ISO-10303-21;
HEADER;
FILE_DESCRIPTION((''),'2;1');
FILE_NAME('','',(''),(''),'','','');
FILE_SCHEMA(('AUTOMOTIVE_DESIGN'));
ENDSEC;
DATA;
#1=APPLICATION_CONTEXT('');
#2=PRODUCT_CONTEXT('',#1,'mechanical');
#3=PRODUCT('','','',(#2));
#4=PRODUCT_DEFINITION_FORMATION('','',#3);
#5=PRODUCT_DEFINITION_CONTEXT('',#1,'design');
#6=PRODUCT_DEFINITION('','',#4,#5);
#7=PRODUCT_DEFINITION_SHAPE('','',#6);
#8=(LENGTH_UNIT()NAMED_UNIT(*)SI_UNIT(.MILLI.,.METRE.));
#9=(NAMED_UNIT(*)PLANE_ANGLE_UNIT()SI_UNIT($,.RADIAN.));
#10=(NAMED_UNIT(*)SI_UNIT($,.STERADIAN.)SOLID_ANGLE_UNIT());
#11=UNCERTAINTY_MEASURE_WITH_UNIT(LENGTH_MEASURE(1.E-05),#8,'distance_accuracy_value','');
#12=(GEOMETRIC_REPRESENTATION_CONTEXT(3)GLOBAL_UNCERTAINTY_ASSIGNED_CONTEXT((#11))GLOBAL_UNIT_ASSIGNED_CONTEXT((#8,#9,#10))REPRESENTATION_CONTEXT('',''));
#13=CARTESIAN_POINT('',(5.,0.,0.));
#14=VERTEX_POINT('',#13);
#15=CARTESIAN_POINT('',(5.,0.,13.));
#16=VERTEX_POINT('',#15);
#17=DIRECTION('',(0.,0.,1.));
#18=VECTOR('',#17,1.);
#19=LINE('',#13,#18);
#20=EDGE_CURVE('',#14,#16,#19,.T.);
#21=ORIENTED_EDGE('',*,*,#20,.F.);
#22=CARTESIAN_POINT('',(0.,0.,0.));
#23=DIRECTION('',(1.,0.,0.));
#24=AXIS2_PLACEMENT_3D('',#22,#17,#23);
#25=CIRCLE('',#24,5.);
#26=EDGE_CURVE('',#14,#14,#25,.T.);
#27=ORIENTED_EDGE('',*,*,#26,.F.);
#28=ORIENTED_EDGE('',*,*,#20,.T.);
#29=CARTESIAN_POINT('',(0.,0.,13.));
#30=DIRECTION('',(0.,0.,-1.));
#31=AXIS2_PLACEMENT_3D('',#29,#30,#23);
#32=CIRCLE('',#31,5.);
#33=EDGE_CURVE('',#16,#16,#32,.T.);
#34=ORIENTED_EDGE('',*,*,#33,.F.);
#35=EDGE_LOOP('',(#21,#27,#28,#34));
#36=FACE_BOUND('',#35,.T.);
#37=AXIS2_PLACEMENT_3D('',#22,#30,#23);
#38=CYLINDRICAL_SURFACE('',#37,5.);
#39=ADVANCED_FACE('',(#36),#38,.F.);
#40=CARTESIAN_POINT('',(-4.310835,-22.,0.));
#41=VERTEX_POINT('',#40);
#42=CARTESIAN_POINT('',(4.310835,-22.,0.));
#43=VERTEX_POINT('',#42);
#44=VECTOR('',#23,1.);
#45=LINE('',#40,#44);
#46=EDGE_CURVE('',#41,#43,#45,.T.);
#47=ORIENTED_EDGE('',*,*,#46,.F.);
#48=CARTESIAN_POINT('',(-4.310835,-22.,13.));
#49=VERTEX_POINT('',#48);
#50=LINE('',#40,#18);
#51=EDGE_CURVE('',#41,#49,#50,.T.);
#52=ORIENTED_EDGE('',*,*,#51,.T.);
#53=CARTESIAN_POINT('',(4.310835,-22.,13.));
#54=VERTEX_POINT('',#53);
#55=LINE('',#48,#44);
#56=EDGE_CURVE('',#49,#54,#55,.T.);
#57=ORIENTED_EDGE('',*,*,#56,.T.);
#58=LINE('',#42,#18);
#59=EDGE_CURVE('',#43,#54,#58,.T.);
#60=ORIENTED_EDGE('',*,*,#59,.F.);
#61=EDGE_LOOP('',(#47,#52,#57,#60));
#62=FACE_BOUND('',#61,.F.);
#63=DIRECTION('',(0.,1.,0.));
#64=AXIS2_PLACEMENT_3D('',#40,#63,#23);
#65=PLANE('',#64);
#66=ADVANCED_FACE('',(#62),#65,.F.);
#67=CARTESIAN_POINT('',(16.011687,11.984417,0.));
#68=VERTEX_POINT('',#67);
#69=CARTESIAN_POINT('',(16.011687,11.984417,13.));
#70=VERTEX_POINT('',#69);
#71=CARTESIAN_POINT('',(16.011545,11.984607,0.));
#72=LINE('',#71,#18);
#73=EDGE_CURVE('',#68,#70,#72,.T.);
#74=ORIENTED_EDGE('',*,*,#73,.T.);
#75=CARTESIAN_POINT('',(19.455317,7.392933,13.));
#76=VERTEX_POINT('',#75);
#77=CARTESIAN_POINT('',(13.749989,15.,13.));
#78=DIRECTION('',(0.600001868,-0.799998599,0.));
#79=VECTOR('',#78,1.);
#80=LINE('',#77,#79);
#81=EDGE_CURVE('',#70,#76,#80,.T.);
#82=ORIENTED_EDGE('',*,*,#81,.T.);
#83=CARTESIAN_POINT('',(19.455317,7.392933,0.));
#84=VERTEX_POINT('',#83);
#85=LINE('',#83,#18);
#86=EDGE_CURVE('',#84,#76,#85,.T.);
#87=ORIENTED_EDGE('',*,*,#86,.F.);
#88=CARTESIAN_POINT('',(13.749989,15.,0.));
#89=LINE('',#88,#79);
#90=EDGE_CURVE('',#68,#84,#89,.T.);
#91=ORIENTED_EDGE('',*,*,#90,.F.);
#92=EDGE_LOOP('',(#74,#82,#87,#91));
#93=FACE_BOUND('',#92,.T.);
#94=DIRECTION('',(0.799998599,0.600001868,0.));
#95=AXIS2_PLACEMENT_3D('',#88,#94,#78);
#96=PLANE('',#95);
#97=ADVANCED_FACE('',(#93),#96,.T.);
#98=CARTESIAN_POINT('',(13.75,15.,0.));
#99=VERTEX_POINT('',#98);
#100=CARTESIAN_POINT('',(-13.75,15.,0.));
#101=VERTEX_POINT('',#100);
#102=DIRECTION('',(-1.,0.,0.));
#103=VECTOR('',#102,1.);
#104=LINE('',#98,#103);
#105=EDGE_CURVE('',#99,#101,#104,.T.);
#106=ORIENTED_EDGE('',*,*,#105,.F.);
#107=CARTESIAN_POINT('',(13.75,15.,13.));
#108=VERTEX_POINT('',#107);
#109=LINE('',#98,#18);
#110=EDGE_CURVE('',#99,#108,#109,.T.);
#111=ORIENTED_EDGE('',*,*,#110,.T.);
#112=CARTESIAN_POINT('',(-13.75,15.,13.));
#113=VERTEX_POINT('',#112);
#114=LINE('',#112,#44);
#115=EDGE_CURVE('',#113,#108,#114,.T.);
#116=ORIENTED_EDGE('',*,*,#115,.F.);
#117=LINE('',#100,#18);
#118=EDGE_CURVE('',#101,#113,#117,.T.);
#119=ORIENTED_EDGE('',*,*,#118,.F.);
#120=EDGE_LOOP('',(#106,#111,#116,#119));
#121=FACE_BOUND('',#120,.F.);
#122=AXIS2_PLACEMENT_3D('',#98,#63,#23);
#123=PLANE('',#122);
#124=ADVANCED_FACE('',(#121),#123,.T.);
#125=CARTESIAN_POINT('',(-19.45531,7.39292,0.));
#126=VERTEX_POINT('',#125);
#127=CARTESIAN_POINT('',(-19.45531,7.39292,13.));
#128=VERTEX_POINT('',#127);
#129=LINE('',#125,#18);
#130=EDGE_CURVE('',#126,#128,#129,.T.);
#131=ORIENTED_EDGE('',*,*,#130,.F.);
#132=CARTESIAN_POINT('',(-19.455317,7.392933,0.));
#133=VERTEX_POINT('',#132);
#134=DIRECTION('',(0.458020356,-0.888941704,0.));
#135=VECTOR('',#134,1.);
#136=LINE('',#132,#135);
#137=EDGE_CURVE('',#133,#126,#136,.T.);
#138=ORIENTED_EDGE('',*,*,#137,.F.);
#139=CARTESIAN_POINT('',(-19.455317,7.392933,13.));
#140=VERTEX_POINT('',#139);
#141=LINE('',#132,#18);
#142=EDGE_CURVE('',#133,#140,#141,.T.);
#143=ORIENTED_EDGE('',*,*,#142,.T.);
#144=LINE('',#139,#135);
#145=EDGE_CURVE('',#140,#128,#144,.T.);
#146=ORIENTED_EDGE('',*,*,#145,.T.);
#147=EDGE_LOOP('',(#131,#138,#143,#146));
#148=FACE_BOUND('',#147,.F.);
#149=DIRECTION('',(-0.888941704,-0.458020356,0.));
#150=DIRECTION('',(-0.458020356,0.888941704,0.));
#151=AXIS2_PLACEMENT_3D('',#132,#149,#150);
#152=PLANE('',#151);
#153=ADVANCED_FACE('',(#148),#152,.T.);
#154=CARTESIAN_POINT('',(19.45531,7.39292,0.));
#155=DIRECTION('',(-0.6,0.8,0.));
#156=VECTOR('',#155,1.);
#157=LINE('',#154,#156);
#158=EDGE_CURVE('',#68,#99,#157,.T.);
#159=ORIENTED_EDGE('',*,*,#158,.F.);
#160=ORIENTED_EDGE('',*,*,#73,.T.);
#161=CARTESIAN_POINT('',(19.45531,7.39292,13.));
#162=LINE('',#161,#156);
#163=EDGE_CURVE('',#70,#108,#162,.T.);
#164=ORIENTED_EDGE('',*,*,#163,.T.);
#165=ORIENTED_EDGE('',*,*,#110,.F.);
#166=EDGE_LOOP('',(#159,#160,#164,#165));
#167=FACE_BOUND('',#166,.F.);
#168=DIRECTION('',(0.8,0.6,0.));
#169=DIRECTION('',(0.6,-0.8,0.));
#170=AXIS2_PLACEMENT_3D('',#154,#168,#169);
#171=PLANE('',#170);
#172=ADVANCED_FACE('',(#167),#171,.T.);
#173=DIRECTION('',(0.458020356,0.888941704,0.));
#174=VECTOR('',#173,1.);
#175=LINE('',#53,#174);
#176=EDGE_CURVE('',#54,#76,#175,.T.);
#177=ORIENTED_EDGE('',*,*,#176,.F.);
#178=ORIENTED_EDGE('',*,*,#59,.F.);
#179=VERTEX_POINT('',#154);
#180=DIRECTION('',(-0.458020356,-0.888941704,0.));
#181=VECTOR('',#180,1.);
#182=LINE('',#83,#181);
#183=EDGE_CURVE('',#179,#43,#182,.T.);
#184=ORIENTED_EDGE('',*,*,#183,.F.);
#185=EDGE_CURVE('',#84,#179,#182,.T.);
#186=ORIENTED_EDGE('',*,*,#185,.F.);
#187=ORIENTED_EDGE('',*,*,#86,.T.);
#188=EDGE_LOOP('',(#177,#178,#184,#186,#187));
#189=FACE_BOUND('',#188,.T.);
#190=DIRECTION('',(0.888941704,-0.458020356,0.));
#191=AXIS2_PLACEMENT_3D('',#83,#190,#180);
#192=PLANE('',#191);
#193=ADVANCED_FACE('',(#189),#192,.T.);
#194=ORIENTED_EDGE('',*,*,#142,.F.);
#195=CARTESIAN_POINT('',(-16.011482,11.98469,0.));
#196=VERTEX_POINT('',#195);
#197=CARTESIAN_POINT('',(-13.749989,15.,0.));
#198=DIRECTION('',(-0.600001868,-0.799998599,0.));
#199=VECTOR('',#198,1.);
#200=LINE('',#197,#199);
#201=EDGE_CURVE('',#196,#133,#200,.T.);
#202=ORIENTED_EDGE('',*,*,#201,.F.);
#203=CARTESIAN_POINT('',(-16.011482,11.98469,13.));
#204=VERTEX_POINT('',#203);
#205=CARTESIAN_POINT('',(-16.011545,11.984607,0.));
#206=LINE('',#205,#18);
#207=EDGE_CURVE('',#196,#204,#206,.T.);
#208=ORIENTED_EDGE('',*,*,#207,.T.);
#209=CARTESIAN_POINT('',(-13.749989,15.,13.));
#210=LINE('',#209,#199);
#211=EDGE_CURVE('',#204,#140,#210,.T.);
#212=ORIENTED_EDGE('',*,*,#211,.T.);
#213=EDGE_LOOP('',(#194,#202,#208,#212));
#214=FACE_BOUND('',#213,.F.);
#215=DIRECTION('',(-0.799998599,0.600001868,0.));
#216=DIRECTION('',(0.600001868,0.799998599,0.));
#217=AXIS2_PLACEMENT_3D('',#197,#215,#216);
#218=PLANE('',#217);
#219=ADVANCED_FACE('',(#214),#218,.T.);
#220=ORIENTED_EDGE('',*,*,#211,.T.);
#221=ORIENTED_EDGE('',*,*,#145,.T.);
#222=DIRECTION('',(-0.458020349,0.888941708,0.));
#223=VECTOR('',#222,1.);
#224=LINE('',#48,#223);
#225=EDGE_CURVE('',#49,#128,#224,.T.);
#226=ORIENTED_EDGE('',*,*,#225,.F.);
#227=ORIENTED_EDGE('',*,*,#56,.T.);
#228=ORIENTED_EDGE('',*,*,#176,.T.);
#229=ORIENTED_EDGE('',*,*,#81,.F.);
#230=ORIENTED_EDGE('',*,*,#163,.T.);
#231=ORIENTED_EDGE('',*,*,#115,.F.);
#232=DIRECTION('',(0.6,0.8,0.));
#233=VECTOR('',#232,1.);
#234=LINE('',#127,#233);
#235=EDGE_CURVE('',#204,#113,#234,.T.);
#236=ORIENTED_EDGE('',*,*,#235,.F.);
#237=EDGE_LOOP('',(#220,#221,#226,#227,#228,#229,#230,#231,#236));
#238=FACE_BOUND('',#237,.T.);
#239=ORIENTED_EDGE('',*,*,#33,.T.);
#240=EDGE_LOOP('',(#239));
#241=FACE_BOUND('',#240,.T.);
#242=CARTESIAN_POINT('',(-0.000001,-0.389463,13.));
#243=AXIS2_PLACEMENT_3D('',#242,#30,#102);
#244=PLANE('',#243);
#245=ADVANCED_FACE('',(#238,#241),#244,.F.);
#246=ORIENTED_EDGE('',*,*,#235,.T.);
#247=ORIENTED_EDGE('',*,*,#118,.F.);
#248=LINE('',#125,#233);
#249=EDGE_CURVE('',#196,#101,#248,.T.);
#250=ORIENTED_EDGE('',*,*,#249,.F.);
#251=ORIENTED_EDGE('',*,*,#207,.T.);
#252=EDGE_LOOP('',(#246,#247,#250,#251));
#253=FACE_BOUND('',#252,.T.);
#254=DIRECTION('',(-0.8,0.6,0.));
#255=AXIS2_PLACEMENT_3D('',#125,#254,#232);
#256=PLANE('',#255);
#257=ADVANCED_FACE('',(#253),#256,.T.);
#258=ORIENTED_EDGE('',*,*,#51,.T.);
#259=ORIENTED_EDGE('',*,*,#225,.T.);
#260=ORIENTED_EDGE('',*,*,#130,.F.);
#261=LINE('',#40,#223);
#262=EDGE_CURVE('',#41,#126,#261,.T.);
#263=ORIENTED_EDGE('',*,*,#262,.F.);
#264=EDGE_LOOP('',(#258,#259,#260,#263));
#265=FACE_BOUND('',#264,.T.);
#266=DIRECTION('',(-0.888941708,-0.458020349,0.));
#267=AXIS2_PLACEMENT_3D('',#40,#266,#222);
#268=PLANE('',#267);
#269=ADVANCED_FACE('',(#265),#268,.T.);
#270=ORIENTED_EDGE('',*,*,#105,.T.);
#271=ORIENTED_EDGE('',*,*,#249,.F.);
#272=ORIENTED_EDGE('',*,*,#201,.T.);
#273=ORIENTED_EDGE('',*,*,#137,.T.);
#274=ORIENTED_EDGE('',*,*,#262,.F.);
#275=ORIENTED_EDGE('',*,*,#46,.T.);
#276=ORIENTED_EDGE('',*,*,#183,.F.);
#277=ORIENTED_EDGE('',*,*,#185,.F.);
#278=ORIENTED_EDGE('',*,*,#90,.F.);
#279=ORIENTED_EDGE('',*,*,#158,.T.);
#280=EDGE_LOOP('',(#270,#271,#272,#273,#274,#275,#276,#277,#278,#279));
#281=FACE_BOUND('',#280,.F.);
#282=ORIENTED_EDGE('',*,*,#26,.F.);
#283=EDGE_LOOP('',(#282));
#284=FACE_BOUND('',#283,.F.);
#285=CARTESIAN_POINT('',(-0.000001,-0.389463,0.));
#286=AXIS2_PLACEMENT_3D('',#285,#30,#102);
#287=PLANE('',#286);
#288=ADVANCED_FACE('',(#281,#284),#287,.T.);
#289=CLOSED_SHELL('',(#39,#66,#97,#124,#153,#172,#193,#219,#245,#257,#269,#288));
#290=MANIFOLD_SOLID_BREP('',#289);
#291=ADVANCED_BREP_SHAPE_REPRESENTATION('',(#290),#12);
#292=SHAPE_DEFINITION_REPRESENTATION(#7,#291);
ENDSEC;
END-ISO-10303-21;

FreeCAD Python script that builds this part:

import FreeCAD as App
import Part
import Sketcher

V = App.Vector
Q = App.Units.Quantity


def add_polygon(sketch, points):
    """Adds a closed chain of lines whose ends are joined by coincident constraints."""
    first, n = sketch.GeometryCount, len(points)
    for a, b in zip(points, points[1:] + points[:1]):
        sketch.addGeometry(Part.LineSegment(App.Vector(*a, 0), App.Vector(*b, 0)), False)
    for i in range(n):
        sketch.addConstraint(Sketcher.Constraint("Coincident", first + i, 2, first + (i + 1) % n, 1))

doc = App.newDocument("Part")
body = doc.addObject("PartDesign::Body", "Body")

sketch1 = body.newObject("Sketcher::SketchObject", "Sketch")
sketch1.AttachmentSupport = (doc.getObject("XY_Plane"), [""])
sketch1.MapMode = "FlatFace"
add_polygon(sketch1, [(14, 15), (-14, 15), (-19, 7), (-4, -22), (4, -22), (19, 7)])
sketch1.addGeometry(Part.Circle(V(0, 0, 0), V(0, 0, 1), 5), False)
sketch1.addConstraint([
    Sketcher.Constraint("Horizontal", 0),
    Sketcher.Constraint("Horizontal", 3),
    Sketcher.Constraint("Coincident", 6, 3, -1, 1),
    Sketcher.Constraint("Equal", 1, 5),
    Sketcher.Constraint("Diameter", 6, Q("10 mm")),
    Sketcher.Constraint("DistanceY", -1, 1, 0, 2, Q("15 mm")),
    Sketcher.Constraint("DistanceY", 2, 2, -1, 1, Q("22 mm")),
    Sketcher.Constraint("DistanceX", 0, 2, -1, 1, Q("13.75 mm")),
    Sketcher.Constraint("DistanceX", 0, 2, 0, 1, Q("27.499989 mm")),
    Sketcher.Constraint("DistanceX", 3, 1, 3, 2, Q("8.62167 mm")),
    Sketcher.Constraint("DistanceX", 1, 2, 5, 2, Q("33.205299 mm")),
    Sketcher.Constraint("Distance", 1, Q("9.50885 mm")),
    Sketcher.Constraint("Distance", 2, Q("33.06507 mm")),
    Sketcher.Constraint("DistanceX", 5, 2, 4, 2, Q("5.705328 mm")),
])
pad1 = body.newObject("PartDesign::Pad", "Pad")
pad1.Profile = sketch1
pad1.Length = 13
doc.recompute()

mirrored = body.newObject("PartDesign::Mirrored", "Mirrored")
mirrored.Originals = [pad1]
mirrored.MirrorPlane = (doc.getObject("YZ_Plane"), [""])
body.Tip = mirrored

doc.recompute()
